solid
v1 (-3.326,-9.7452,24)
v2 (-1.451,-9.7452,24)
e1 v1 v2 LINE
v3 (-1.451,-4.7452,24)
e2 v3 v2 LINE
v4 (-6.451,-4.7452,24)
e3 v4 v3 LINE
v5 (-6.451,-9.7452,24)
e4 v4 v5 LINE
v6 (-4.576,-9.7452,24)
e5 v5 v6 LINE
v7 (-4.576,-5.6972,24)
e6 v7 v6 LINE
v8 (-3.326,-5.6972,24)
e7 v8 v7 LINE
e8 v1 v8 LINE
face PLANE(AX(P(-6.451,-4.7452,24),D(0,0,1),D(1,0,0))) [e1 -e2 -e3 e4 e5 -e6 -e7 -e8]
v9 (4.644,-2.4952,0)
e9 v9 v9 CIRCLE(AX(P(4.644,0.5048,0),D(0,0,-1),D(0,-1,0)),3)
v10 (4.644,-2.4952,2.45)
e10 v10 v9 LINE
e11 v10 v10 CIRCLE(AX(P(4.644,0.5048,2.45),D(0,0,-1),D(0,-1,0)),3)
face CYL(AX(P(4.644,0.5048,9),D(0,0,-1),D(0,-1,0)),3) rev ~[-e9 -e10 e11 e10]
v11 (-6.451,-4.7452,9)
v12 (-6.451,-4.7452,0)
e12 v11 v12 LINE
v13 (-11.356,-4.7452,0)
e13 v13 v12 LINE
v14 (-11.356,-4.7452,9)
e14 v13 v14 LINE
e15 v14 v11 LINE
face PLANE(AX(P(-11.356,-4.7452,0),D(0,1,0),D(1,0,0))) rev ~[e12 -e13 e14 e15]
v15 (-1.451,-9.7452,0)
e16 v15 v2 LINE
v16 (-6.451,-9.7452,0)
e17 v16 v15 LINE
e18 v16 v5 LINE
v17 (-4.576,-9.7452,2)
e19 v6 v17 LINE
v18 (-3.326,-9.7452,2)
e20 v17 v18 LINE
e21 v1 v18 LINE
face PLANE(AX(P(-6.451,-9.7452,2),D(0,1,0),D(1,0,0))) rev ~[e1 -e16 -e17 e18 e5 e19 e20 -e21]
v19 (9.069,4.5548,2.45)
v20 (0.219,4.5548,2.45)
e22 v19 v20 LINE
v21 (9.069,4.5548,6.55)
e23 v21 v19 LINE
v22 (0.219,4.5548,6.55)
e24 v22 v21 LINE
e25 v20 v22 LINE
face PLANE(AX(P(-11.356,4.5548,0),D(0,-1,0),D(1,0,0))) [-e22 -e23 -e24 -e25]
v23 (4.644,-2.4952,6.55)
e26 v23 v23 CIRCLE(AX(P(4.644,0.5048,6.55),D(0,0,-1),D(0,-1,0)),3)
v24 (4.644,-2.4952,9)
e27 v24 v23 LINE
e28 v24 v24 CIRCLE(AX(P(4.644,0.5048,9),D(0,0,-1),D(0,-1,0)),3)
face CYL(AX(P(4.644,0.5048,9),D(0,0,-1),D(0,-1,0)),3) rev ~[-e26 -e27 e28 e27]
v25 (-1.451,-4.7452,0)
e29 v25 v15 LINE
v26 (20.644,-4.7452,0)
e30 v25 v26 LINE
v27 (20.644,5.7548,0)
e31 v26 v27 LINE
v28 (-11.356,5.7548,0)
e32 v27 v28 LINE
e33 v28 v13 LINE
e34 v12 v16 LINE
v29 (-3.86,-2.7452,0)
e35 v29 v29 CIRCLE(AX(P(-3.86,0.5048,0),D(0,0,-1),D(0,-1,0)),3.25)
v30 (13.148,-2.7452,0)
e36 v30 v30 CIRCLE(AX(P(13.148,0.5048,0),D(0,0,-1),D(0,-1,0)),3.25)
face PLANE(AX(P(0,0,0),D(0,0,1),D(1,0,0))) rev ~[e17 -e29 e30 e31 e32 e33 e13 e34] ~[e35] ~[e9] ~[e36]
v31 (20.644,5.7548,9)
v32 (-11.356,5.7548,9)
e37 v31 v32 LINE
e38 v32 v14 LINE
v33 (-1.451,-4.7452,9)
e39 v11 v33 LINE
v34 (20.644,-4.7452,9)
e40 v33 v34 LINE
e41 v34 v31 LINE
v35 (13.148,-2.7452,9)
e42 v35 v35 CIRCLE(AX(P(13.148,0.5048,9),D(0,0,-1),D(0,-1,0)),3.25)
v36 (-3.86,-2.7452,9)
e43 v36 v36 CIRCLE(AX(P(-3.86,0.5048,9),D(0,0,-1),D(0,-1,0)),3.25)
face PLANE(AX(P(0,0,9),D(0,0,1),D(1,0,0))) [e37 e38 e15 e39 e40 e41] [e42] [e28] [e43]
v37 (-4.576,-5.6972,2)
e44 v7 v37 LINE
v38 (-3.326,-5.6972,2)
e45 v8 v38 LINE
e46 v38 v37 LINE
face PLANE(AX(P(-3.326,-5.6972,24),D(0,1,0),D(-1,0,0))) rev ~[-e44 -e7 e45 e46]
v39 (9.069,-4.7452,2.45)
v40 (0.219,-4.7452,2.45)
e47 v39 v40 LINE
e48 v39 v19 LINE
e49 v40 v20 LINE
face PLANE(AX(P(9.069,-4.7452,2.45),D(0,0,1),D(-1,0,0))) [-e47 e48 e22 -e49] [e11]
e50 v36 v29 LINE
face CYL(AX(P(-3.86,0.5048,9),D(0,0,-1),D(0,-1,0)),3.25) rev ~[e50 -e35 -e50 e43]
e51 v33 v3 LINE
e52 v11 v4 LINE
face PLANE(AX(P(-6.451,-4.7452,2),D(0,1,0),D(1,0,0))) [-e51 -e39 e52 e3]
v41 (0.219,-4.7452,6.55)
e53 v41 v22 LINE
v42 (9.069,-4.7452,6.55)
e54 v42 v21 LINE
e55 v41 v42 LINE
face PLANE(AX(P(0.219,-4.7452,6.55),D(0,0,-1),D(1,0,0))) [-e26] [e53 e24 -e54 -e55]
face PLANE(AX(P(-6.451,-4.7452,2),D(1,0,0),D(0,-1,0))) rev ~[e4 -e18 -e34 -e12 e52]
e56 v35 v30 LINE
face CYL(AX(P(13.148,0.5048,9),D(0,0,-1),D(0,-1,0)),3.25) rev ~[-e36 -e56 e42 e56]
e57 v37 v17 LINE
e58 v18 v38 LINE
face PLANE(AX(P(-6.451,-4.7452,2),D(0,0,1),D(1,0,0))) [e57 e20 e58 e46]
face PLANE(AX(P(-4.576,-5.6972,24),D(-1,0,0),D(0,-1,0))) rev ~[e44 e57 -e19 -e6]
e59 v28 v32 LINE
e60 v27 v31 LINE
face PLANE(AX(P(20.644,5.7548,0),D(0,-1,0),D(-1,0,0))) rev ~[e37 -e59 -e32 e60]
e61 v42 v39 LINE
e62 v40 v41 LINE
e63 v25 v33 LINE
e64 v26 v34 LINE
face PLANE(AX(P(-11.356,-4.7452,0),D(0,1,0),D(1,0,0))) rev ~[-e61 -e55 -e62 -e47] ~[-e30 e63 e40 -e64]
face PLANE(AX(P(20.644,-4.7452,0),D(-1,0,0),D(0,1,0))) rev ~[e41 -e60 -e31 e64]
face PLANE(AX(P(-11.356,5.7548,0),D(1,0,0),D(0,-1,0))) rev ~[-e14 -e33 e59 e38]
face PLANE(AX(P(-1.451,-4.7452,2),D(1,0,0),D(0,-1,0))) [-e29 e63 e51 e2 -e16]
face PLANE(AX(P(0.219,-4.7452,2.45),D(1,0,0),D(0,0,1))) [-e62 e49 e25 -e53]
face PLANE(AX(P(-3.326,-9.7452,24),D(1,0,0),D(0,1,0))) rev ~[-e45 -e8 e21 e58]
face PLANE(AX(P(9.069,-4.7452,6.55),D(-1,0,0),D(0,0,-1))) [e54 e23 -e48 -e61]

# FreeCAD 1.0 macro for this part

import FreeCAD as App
import Part
import Sketcher
from FreeCAD import Vector


def add_polygon(sketch, points):
    """Adds a closed chain of lines whose ends are joined by coincident constraints."""
    first, n = sketch.GeometryCount, len(points)
    for a, b in zip(points, points[1:] + points[:1]):
        sketch.addGeometry(Part.LineSegment(App.Vector(*a, 0), App.Vector(*b, 0)), False)
    for i in range(n):
        sketch.addConstraint(Sketcher.Constraint("Coincident", first + i, 2, first + (i + 1) % n, 1))

doc = App.newDocument("Part")
body = doc.addObject("PartDesign::Body", "Body")

# Sketch on XY plane
sketch1 = body.newObject("Sketcher::SketchObject", "Sketch")
sketch1.AttachmentSupport = (doc.getObject("XY_Plane"), [""])
sketch1.MapMode = "FlatFace"
add_polygon(sketch1, [(-11.356, 5.7548), (-11.356, -4.7452), (20.644, -4.7452), (20.644, 5.7548)])  # lines 0-3
sketch1.addConstraint([
    Sketcher.Constraint("Vertical", 0),
    Sketcher.Constraint("Horizontal", 1),
    Sketcher.Constraint("Vertical", 2),
    Sketcher.Constraint("Horizontal", 3),
    Sketcher.Constraint("DistanceX", 1, 1, 1, 2, 32.0),
    Sketcher.Constraint("DistanceY", 0, 2, 0, 1, 10.5),
    Sketcher.Constraint("DistanceX", 0, 2, -1, 1, 11.356),
    Sketcher.Constraint("DistanceY", 0, 2, -1, 1, 4.7452),
])
pad1 = body.newObject("PartDesign::Pad", "Pad")
pad1.Profile = sketch1
pad1.Length = 9

# Sketch on XZ plane
sketch2 = body.newObject("Sketcher::SketchObject", "Sketch001")
sketch2.AttachmentSupport = (doc.getObject("XZ_Plane"), [""])
sketch2.MapMode = "FlatFace"
sketch2.AttachmentOffset = App.Placement(Vector(0, 0, 4.7452), App.Rotation())
add_polygon(sketch2, [(9.069, 6.55), (0.219, 6.55), (0.219, 2.45), (9.069, 2.45)])  # lines 0-3
sketch2.addConstraint([
    Sketcher.Constraint("Horizontal", 0),
    Sketcher.Constraint("Vertical", 1),
    Sketcher.Constraint("Horizontal", 2),
    Sketcher.Constraint("Vertical", 3),
    Sketcher.Constraint("DistanceY", 1, 2, 1, 1, 4.1),
    Sketcher.Constraint("DistanceX", 0, 2, 0, 1, 8.85),
    Sketcher.Constraint("DistanceY", -1, 1, 1, 2, 2.45),
    Sketcher.Constraint("DistanceX", -1, 1, 0, 2, 0.219),
])
pocket1 = body.newObject("PartDesign::Pocket", "Pocket")
pocket1.Profile = sketch2
pocket1.Length = 9.3

# Sketch on XZ plane
sketch3 = body.newObject("Sketcher::SketchObject", "Sketch002")
sketch3.AttachmentSupport = (doc.getObject("XZ_Plane"), [""])
sketch3.MapMode = "FlatFace"
sketch3.AttachmentOffset = App.Placement(Vector(0, 0, 4.7452), App.Rotation())
add_polygon(sketch3, [(-6.451, 2), (-6.451, 0), (-1.451, 0), (-1.451, 2)])  # lines 0-3
sketch3.addConstraint([
    Sketcher.Constraint("Vertical", 0),
    Sketcher.Constraint("Horizontal", 1),
    Sketcher.Constraint("Vertical", 2),
    Sketcher.Constraint("Horizontal", 3),
    Sketcher.Constraint("PointOnObject", 0, 2, -1),
    Sketcher.Constraint("DistanceX", 1, 1, 1, 2, 5.0),
    Sketcher.Constraint("DistanceY", 0, 2, 0, 1, 2.0),
    Sketcher.Constraint("DistanceX", 0, 2, -1, 1, 6.451),
])
pad2 = body.newObject("PartDesign::Pad", "Pad001")
pad2.Profile = sketch3
pad2.Length = 5

# Sketch on XY plane
sketch4 = body.newObject("Sketcher::SketchObject", "Sketch003")
sketch4.AttachmentSupport = (doc.getObject("XY_Plane"), [""])
sketch4.MapMode = "FlatFace"
sketch4.AttachmentOffset = App.Placement(Vector(0, 0, 2), App.Rotation())
add_polygon(sketch4, [(-6.451, -4.7452), (-6.451, -9.7452), (-1.451, -9.7452), (-1.451, -4.7452)])  # lines 0-3
sketch4.addConstraint([
    Sketcher.Constraint("Vertical", 0),
    Sketcher.Constraint("Horizontal", 1),
    Sketcher.Constraint("Vertical", 2),
    Sketcher.Constraint("Horizontal", 3),
    Sketcher.Constraint("Equal", 3, 0),
    Sketcher.Constraint("DistanceX", 1, 1, 1, 2, 5.0),
    Sketcher.Constraint("DistanceX", 0, 2, -1, 1, 6.451),
    Sketcher.Constraint("DistanceY", 0, 2, -1, 1, 9.7452),
])
pad3 = body.newObject("PartDesign::Pad", "Pad002")
pad3.Profile = sketch4
pad3.Length = 22

# Sketch on XY plane
sketch5 = body.newObject("Sketcher::SketchObject", "Sketch004")
sketch5.AttachmentSupport = (doc.getObject("XY_Plane"), [""])
sketch5.MapMode = "FlatFace"
sketch5.AttachmentOffset = App.Placement(Vector(0, 0, 24), App.Rotation())
add_polygon(sketch5, [(-4.576, -5.6972), (-4.576, -9.7452), (-3.326, -9.7452), (-3.326, -5.6972)])  # lines 0-3
sketch5.addConstraint([
    Sketcher.Constraint("Vertical", 0),
    Sketcher.Constraint("Horizontal", 1),
    Sketcher.Constraint("Vertical", 2),
    Sketcher.Constraint("Horizontal", 3),
    Sketcher.Constraint("DistanceY", 0, 2, 0, 1, 4.048),
    Sketcher.Constraint("DistanceX", 1, 1, 1, 2, 1.25),
    Sketcher.Constraint("DistanceX", 0, 2, -1, 1, 4.576),
    Sketcher.Constraint("DistanceY", 0, 2, -1, 1, 9.7452),
])
pocket2 = body.newObject("PartDesign::Pocket", "Pocket001")
pocket2.Profile = sketch5
pocket2.Length = 22

# Sketch on XY plane
sketch6 = body.newObject("Sketcher::SketchObject", "Sketch005")
sketch6.AttachmentSupport = (doc.getObject("XY_Plane"), [""])
sketch6.MapMode = "FlatFace"
sketch6.AttachmentOffset = App.Placement(Vector(0, 0, 9), App.Rotation())
sketch6.addGeometry(Part.Circle(Vector(4.644, 0.5048, 0), Vector(0, 0, 1), 3), False)
sketch6.addConstraint([
    Sketcher.Constraint("Diameter", 0, 6.0),
    Sketcher.Constraint("DistanceX", -1, 1, 0, 3, 4.644),
    Sketcher.Constraint("DistanceY", -1, 1, 0, 3, 0.5048),
])
doc.recompute()
hole = body.newObject("PartDesign::Hole", "Hole")
hole.Profile = sketch6
hole.ThreadType = "None"
hole.Diameter = 6
hole.DepthType = "ThroughAll"

# Sketch on XY plane
sketch7 = body.newObject("Sketcher::SketchObject", "Sketch006")
sketch7.AttachmentSupport = (doc.getObject("XY_Plane"), [""])
sketch7.MapMode = "FlatFace"
sketch7.AttachmentOffset = App.Placement(Vector(0, 0, 9), App.Rotation())
sketch7.addGeometry([
    Part.Circle(Vector(13.148, 0.5048, 0), Vector(0, 0, 1), 3.25),
    Part.Circle(Vector(-3.86, 0.5048, 0), Vector(0, 0, 1), 3.25),
], False)
sketch7.addConstraint([
    Sketcher.Constraint("Equal", 0, 1),
    Sketcher.Constraint("Horizontal", 0, 3, 1, 3),
    Sketcher.Constraint("Diameter", 0, 6.5),
    Sketcher.Constraint("DistanceX", 1, 3, -1, 1, 3.86),
    Sketcher.Constraint("DistanceX", -1, 1, 0, 3, 13.148),
    Sketcher.Constraint("DistanceY", -1, 1, 0, 3, 0.5048),
])
doc.recompute()
hole2 = body.newObject("PartDesign::Hole", "Hole001")
hole2.Profile = sketch7
hole2.ThreadType = "None"
hole2.Diameter = 6.5
hole2.DepthType = "ThroughAll"

doc.recompute()
